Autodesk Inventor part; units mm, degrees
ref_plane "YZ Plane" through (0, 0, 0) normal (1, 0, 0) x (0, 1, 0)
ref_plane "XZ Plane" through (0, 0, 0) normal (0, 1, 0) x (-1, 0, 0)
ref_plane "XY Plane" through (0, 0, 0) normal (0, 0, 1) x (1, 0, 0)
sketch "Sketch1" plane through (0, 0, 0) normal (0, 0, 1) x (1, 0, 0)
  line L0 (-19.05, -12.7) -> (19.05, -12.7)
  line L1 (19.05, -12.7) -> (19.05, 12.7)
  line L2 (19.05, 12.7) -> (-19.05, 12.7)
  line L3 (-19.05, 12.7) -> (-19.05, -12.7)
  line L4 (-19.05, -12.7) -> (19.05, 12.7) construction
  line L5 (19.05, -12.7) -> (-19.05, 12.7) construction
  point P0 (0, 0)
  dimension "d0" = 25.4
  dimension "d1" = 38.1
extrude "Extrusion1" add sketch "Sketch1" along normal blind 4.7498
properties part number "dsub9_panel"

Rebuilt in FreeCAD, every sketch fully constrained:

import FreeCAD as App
import Part
import Sketcher

V = App.Vector
Q = App.Units.Quantity


def add_polygon(sketch, points):
    """Adds a closed chain of lines whose ends are joined by coincident constraints."""
    first, n = sketch.GeometryCount, len(points)
    for a, b in zip(points, points[1:] + points[:1]):
        sketch.addGeometry(Part.LineSegment(App.Vector(*a, 0), App.Vector(*b, 0)), False)
    for i in range(n):
        sketch.addConstraint(Sketcher.Constraint("Coincident", first + i, 2, first + (i + 1) % n, 1))

doc = App.newDocument("Part")
body = doc.addObject("PartDesign::Body", "Body")

# Sketch on XY plane
sketch1 = body.newObject("Sketcher::SketchObject", "Sketch")
sketch1.AttachmentSupport = (doc.getObject("XY_Plane"), [""])
sketch1.MapMode = "FlatFace"
add_polygon(sketch1, [(-19, 13), (-19, -13), (19, -13), (19, 13)])  # lines 0-3
sketch1.addConstraint(Sketcher.Constraint("Vertical", 0))
sketch1.addConstraint(Sketcher.Constraint("Horizontal", 1))
sketch1.addConstraint(Sketcher.Constraint("Vertical", 2))
sketch1.addConstraint(Sketcher.Constraint("Horizontal", 3))
sketch1.addConstraint(Sketcher.Constraint("Symmetric", 0, 2, 2, 2, -1, 1))
sketch1.addConstraint(Sketcher.Constraint("DistanceY", 0, 2, 0, 1, Q("1 in")))
sketch1.addConstraint(Sketcher.Constraint("DistanceX", 1, 1, 1, 2, Q("1.5 in")))
pad1 = body.newObject("PartDesign::Pad", "Pad")
pad1.Profile = sketch1
pad1.Length = Q("0.187 in")

doc.recompute()
